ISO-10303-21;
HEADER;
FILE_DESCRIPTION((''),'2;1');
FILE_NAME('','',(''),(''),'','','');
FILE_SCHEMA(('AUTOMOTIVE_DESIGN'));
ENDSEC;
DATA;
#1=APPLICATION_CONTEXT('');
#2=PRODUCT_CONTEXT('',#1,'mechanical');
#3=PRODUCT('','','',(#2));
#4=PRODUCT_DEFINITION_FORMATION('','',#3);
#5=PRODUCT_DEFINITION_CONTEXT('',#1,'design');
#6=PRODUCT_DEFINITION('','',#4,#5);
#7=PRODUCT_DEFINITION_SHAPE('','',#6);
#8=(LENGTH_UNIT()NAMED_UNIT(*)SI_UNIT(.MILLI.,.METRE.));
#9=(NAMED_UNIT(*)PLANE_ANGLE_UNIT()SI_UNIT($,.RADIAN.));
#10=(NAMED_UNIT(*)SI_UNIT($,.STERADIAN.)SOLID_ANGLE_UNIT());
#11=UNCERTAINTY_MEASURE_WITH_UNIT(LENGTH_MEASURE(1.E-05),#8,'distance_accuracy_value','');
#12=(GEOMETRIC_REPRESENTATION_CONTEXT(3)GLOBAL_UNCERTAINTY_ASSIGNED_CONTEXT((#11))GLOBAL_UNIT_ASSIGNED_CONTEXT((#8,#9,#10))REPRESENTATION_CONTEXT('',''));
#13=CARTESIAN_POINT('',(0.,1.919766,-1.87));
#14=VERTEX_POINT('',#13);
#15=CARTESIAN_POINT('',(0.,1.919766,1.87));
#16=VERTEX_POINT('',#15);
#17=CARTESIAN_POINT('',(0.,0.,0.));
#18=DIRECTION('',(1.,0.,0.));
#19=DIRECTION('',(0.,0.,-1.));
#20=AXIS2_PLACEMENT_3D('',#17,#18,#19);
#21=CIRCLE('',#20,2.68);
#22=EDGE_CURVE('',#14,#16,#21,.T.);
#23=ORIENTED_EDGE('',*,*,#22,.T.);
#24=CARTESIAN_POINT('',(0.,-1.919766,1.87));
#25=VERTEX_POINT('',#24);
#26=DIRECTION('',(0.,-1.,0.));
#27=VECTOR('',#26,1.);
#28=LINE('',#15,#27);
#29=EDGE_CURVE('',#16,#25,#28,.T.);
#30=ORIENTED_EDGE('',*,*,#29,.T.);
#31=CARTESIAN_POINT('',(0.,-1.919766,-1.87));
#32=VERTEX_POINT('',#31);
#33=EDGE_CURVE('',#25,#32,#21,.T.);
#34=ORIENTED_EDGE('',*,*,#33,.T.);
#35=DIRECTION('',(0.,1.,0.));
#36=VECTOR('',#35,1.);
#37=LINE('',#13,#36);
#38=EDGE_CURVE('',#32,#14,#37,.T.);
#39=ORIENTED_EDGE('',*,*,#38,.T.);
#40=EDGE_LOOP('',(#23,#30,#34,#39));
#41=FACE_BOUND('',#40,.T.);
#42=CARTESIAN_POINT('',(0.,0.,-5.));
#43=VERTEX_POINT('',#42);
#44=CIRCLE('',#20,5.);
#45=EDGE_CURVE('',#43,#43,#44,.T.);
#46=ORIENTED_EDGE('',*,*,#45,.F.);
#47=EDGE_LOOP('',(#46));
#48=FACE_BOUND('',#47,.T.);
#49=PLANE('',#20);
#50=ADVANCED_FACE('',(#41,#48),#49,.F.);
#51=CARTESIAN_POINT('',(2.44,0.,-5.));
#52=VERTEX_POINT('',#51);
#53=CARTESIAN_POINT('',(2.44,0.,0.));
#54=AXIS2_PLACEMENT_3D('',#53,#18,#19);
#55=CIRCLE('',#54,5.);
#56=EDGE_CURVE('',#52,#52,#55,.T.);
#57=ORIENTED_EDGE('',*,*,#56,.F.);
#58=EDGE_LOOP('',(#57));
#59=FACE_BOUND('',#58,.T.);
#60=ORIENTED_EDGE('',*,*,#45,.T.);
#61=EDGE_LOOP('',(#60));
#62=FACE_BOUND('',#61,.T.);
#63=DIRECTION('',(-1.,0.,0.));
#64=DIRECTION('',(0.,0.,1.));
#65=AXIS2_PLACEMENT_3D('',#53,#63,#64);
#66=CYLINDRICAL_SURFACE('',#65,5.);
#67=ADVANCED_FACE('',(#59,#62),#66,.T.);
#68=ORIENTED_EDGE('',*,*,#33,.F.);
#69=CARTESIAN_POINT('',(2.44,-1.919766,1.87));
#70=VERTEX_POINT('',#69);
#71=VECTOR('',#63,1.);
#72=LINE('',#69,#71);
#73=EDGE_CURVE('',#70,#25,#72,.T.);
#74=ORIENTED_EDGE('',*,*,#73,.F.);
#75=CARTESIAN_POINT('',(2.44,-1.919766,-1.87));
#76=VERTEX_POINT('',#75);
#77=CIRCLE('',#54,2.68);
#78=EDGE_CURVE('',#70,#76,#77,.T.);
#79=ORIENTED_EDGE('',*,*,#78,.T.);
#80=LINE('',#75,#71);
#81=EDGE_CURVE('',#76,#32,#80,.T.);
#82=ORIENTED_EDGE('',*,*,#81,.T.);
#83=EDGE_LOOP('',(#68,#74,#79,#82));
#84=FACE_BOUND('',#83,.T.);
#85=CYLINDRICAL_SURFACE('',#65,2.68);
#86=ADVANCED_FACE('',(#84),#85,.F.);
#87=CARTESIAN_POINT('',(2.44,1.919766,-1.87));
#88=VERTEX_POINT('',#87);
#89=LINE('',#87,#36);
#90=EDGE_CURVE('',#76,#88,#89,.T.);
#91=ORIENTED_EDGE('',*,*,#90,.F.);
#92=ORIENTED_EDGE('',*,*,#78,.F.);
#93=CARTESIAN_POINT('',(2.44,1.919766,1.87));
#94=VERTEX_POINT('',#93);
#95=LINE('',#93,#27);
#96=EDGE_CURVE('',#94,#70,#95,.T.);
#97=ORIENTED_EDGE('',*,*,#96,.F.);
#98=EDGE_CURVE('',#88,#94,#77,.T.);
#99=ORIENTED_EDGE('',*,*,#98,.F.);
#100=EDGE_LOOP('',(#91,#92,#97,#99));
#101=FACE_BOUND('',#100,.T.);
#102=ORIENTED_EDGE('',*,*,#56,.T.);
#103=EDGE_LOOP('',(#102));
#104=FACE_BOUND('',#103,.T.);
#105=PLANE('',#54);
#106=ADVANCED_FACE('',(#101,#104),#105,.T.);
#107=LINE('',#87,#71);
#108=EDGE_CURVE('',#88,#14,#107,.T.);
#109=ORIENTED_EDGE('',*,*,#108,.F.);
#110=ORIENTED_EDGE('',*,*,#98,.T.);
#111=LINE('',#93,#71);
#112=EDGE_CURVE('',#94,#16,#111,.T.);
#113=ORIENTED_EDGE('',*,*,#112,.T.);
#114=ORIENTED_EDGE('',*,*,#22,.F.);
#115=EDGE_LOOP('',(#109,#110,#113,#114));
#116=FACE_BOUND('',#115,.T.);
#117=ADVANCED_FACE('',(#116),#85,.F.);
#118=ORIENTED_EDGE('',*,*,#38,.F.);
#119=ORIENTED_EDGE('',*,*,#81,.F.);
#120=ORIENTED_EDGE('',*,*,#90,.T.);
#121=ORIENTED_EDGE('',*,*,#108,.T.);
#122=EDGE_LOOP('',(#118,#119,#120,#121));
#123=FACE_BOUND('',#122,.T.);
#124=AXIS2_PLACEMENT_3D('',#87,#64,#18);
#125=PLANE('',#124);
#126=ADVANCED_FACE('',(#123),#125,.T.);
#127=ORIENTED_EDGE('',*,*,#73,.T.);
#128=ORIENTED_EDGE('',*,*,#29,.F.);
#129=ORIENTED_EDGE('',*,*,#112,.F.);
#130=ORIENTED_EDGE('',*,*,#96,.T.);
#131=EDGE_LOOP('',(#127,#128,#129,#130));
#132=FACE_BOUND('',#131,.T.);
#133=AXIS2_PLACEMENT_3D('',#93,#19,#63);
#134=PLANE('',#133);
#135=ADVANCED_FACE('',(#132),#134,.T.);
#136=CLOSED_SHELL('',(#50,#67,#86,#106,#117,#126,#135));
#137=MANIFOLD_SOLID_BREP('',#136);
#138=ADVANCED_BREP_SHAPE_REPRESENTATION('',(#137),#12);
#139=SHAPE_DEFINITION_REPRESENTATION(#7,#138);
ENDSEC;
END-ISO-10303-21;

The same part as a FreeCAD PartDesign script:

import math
import FreeCAD as App
import Part
import Sketcher
from FreeCAD import Vector

doc = App.newDocument("Part")
body = doc.addObject("PartDesign::Body", "Body")

# Sketch on YZ plane
sketch1 = body.newObject("Sketcher::SketchObject", "Sketch")
sketch1.AttachmentSupport = (doc.getObject("YZ_Plane"), [""])
sketch1.MapMode = "FlatFace"
sketch1.addGeometry([
    Part.Circle(Vector(0, 0, 0), Vector(0, 0, 1), 5),  # 0
    Part.LineSegment(Vector(-1.919766, 1.87, 0), Vector(1.919766, 1.87, 0)),  # 1
    Part.ArcOfCircle(Part.Circle(Vector(0, 0, 0), Vector(0, 0, 1), 2.68), math.radians(-44.247659), math.radians(44.247659)),  # 2
    Part.LineSegment(Vector(1.919766, -1.87, 0), Vector(-1.919766, -1.87, 0)),  # 3
    Part.ArcOfCircle(Part.Circle(Vector(0, 0, 0), Vector(0, 0, 1), 2.68), math.radians(135.752341), math.radians(224.247659)),  # 4
], False)
sketch1.addConstraint([
    Sketcher.Constraint("Coincident", 1, 2, 2, 2),
    Sketcher.Constraint("Coincident", 2, 1, 3, 1),
    Sketcher.Constraint("Coincident", 3, 2, 4, 2),
    Sketcher.Constraint("Coincident", 4, 1, 1, 1),
    Sketcher.Constraint("Horizontal", 1),
    Sketcher.Constraint("Horizontal", 3),
    Sketcher.Constraint("Coincident", 0, 3, -1, 1),
    Sketcher.Constraint("Coincident", 2, 3, -1, 1),
    Sketcher.Constraint("Coincident", 4, 3, -1, 1),
    Sketcher.Constraint("Equal", 2, 4),
    Sketcher.Constraint("Vertical", 1, 2, 2, 1),
    Sketcher.Constraint("Diameter", 0, 10.0),
    Sketcher.Constraint("Radius", 2, 2.68),
    Sketcher.Constraint("DistanceY", -1, 1, 1, 2, 1.87),
])
pad1 = body.newObject("PartDesign::Pad", "Pad")
pad1.Profile = sketch1
pad1.Length = 2.44

doc.recompute()
